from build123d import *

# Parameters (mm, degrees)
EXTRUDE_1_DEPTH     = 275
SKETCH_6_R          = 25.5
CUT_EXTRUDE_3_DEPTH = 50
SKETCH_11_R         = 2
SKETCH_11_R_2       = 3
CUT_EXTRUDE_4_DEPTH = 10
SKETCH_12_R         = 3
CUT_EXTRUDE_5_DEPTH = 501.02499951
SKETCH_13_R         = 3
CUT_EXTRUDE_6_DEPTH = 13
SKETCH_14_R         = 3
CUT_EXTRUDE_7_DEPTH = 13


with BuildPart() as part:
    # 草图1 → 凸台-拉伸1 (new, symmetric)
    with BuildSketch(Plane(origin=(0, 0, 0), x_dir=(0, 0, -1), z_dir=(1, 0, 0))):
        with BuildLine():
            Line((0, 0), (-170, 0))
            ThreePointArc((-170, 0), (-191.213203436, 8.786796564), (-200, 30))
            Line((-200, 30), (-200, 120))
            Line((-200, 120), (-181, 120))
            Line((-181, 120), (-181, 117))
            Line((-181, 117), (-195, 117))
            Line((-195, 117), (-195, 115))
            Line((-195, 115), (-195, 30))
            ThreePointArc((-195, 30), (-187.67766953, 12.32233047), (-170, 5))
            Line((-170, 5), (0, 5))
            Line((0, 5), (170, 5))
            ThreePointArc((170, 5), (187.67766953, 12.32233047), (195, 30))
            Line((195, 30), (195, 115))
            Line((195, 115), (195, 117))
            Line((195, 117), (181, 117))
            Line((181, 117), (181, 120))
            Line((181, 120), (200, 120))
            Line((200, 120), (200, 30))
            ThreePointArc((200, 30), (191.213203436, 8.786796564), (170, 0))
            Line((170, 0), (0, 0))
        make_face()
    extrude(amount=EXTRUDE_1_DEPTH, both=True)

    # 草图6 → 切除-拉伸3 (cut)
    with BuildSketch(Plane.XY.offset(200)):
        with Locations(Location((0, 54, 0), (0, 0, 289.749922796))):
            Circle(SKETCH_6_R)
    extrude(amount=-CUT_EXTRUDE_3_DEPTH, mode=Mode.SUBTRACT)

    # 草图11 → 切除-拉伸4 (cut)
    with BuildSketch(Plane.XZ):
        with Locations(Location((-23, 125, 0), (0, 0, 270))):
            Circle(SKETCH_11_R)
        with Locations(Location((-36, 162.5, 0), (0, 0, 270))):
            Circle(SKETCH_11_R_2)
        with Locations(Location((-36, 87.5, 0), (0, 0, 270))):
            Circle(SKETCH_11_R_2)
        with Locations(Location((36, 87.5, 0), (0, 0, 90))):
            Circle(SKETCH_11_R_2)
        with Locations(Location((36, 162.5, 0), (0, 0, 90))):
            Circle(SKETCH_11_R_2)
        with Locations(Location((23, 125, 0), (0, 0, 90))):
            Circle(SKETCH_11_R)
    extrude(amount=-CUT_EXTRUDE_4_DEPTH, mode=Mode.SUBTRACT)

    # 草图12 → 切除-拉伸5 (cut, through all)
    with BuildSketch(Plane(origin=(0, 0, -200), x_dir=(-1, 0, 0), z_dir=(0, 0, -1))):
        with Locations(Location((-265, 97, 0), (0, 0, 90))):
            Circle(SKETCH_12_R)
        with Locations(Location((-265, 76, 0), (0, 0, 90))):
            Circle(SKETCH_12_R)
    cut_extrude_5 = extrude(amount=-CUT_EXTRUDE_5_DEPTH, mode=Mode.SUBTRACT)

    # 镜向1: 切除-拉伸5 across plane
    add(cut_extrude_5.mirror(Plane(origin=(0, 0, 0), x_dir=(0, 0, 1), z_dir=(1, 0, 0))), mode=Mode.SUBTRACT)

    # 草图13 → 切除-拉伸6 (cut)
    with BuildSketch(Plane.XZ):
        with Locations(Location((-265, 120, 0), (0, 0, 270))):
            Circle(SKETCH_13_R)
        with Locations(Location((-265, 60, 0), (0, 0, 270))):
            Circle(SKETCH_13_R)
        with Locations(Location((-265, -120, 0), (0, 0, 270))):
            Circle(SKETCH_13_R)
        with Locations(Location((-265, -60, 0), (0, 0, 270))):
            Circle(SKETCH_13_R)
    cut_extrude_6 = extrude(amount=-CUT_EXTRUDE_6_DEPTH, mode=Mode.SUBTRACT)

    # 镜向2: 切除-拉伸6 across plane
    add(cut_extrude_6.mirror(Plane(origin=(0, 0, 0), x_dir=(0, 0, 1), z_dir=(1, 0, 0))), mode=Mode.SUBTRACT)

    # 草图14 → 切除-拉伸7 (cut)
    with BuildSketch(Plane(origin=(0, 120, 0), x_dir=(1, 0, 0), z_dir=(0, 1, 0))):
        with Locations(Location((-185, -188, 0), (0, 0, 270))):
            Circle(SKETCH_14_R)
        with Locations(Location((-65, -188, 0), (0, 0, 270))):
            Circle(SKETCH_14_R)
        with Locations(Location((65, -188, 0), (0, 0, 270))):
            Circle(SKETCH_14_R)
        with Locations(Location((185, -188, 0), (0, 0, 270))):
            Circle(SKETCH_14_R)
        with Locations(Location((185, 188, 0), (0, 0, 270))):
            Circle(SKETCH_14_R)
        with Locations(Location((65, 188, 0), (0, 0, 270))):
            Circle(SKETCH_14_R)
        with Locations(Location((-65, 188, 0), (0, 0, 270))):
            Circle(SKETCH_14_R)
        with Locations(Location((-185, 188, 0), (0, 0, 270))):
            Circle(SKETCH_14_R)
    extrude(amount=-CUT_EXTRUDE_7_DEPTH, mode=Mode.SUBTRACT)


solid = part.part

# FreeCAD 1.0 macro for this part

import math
import FreeCAD as App
import Part
import Sketcher

V = App.Vector

doc = App.newDocument("Part")
params = doc.addObject("Spreadsheet::Sheet", "Params")
for row, (alias, value) in enumerate([
    ("sketch1_radius", "30 mm"),
    ("sketch1_radius2", "25 mm"),
    ("sketch1_width", "90 mm"),
    ("sketch1_width2", "3 mm"),
    ("sketch1_height", "340 mm"),
    ("pad1_length", "550 mm"),
    ("sketch2_diameter", "51 mm"),
    ("pocket1_length", "50 mm"),
    ("sketch3_diameter", "4 mm"),
    ("sketch3_diameter2", "6 mm"),
    ("pocket2_length", "10 mm"),
    ("sketch4_diameter", "6 mm"),
    ("sketch5_diameter", "6 mm"),
    ("pocket4_length", "13 mm"),
    ("sketch6_diameter", "6 mm"),
    ("pocket5_length", "13 mm"),
], start=1):
    params.set(f"A{row}", alias)
    params.set(f"B{row}", "=" + value)
    params.setAlias(f"B{row}", alias)

body = doc.addObject("PartDesign::Body", "Body")

# Sketch on YZ plane
sketch1 = doc.addObject("Sketcher::SketchObject", "Sketch")
body.addObject(sketch1)
sketch1.AttachmentSupport = (doc.YZ_Plane, [""])
sketch1.MapMode = "FlatFace"
sketch1.addGeometry(Part.ArcOfCircle(Part.Circle(V(30, 170, 0), V(0, 0, 1), 30), math.radians(90), math.radians(180)), False)
sketch1.addGeometry(Part.LineSegment(V(0, 170, 0), V(0, -170, 0)), False)
sketch1.addGeometry(Part.ArcOfCircle(Part.Circle(V(30, -170, 0), V(0, 0, 1), 30), math.radians(180), math.radians(270)), False)
sketch1.addGeometry(Part.LineSegment(V(30, -200, 0), V(120, -200, 0)), False)
sketch1.addGeometry(Part.LineSegment(V(120, -200, 0), V(120, -181, 0)), False)
sketch1.addGeometry(Part.LineSegment(V(120, -181, 0), V(117, -181, 0)), False)
sketch1.addGeometry(Part.LineSegment(V(117, -181, 0), V(117, -195, 0)), False)
sketch1.addGeometry(Part.LineSegment(V(117, -195, 0), V(30, -195, 0)), False)
sketch1.addGeometry(Part.ArcOfCircle(Part.Circle(V(30, -170, 0), V(0, 0, 1), 25), math.radians(180), math.radians(270)), False)
sketch1.addGeometry(Part.LineSegment(V(5, -170, 0), V(5, 170, 0)), False)
sketch1.addGeometry(Part.ArcOfCircle(Part.Circle(V(30, 170, 0), V(0, 0, 1), 25), math.radians(90), math.radians(180)), False)
sketch1.addGeometry(Part.LineSegment(V(30, 195, 0), V(117, 195, 0)), False)
sketch1.addGeometry(Part.LineSegment(V(117, 195, 0), V(117, 181, 0)), False)
sketch1.addGeometry(Part.LineSegment(V(117, 181, 0), V(120, 181, 0)), False)
sketch1.addGeometry(Part.LineSegment(V(120, 181, 0), V(120, 200, 0)), False)
sketch1.addGeometry(Part.LineSegment(V(120, 200, 0), V(30, 200, 0)), False)
sketch1.addConstraint(Sketcher.Constraint("Tangent", 0, 2, 1, 1))
sketch1.addConstraint(Sketcher.Constraint("Tangent", 1, 2, 2, 1))
sketch1.addConstraint(Sketcher.Constraint("Tangent", 2, 2, 3, 1))
sketch1.addConstraint(Sketcher.Constraint("Coincident", 3, 2, 4, 1))
sketch1.addConstraint(Sketcher.Constraint("Coincident", 4, 2, 5, 1))
sketch1.addConstraint(Sketcher.Constraint("Coincident", 5, 2, 6, 1))
sketch1.addConstraint(Sketcher.Constraint("Coincident", 6, 2, 7, 1))
sketch1.addConstraint(Sketcher.Constraint("Tangent", 7, 2, 8, 2))
sketch1.addConstraint(Sketcher.Constraint("Tangent", 8, 1, 9, 1))
sketch1.addConstraint(Sketcher.Constraint("Tangent", 9, 2, 10, 2))
sketch1.addConstraint(Sketcher.Constraint("Tangent", 10, 1, 11, 1))
sketch1.addConstraint(Sketcher.Constraint("Coincident", 11, 2, 12, 1))
sketch1.addConstraint(Sketcher.Constraint("Coincident", 12, 2, 13, 1))
sketch1.addConstraint(Sketcher.Constraint("Coincident", 13, 2, 14, 1))
sketch1.addConstraint(Sketcher.Constraint("Coincident", 14, 2, 15, 1))
sketch1.addConstraint(Sketcher.Constraint("Tangent", 15, 2, 0, 1))
sketch1.addConstraint(Sketcher.Constraint("Vertical", 1))
sketch1.addConstraint(Sketcher.Constraint("Horizontal", 3))
sketch1.addConstraint(Sketcher.Constraint("Vertical", 4))
sketch1.addConstraint(Sketcher.Constraint("Horizontal", 5))
sketch1.addConstraint(Sketcher.Constraint("Vertical", 6))
sketch1.addConstraint(Sketcher.Constraint("Horizontal", 7))
sketch1.addConstraint(Sketcher.Constraint("Vertical", 9))
sketch1.addConstraint(Sketcher.Constraint("Horizontal", 11))
sketch1.addConstraint(Sketcher.Constraint("Vertical", 12))
sketch1.addConstraint(Sketcher.Constraint("Horizontal", 13))
sketch1.addConstraint(Sketcher.Constraint("Vertical", 14))
sketch1.addConstraint(Sketcher.Constraint("Horizontal", 15))
sketch1.addConstraint(Sketcher.Constraint("Coincident", 8, 3, 2, 3))
sketch1.addConstraint(Sketcher.Constraint("Coincident", 10, 3, 0, 3))
sketch1.addConstraint(Sketcher.Constraint("Equal", 0, 2))
sketch1.addConstraint(Sketcher.Constraint("Symmetric", 0, 2, 1, 2, -1, 1))
sketch1.addConstraint(Sketcher.Constraint("Symmetric", 5, 2, 12, 2, -1))
sketch1.addConstraint(Sketcher.Constraint("Vertical", 4, 2, 13, 2))
sketch1.addConstraint(Sketcher.Constraint("Radius", 0, 30.0))
sketch1.addConstraint(Sketcher.Constraint("Radius", 8, 25.0))
sketch1.addConstraint(Sketcher.Constraint("DistanceX", 3, 1, 3, 2, 90.0))
sketch1.addConstraint(Sketcher.Constraint("DistanceX", 5, 2, 5, 1, 3.0))
sketch1.addConstraint(Sketcher.Constraint("DistanceY", 1, 2, 1, 1, 340.0))
sketch1.addConstraint(Sketcher.Constraint("DistanceY", 4, 1, 4, 2, 19.0))
sketch1.setExpression("Constraints[34]", "Params.sketch1_radius")
sketch1.setExpression("Constraints[35]", "Params.sketch1_radius2")
sketch1.setExpression("Constraints[36]", "Params.sketch1_width")
sketch1.setExpression("Constraints[37]", "Params.sketch1_width2")
sketch1.setExpression("Constraints[38]", "Params.sketch1_height")
pad1 = doc.addObject("PartDesign::Pad", "Pad")
body.addObject(pad1)
pad1.Profile = sketch1
pad1.setExpression("Length", "Params.pad1_length")
pad1.Midplane = True

# Sketch on XY plane
sketch2 = doc.addObject("Sketcher::SketchObject", "Sketch001")
body.addObject(sketch2)
sketch2.AttachmentSupport = (doc.XY_Plane, [""])
sketch2.MapMode = "FlatFace"
sketch2.AttachmentOffset = App.Placement(V(0, 0, 200), App.Rotation())
sketch2.addGeometry(Part.Circle(V(0, 54, 0), V(0, 0, 1), 26), False)
sketch2.addConstraint(Sketcher.Constraint("PointOnObject", 0, 3, -2))
sketch2.addConstraint(Sketcher.Constraint("Diameter", 0, 51.0))
sketch2.addConstraint(Sketcher.Constraint("DistanceY", -1, 1, 0, 3, 54.0))
sketch2.setExpression("Constraints[1]", "Params.sketch2_diameter")
pocket1 = doc.addObject("PartDesign::Pocket", "Pocket")
body.addObject(pocket1)
pocket1.Profile = sketch2
pocket1.setExpression("Length", "Params.pocket1_length")

# Sketch on XZ plane
sketch3 = doc.addObject("Sketcher::SketchObject", "Sketch002")
body.addObject(sketch3)
sketch3.AttachmentSupport = (doc.XZ_Plane, [""])
sketch3.MapMode = "FlatFace"
sketch3.addGeometry(Part.Circle(V(-23, 125, 0), V(0, 0, 1), 2), False)
sketch3.addGeometry(Part.Circle(V(-36, 162.5, 0), V(0, 0, 1), 3), False)
sketch3.addGeometry(Part.Circle(V(-36, 87.5, 0), V(0, 0, 1), 3), False)
sketch3.addGeometry(Part.Circle(V(36, 87.5, 0), V(0, 0, 1), 3), False)
sketch3.addGeometry(Part.Circle(V(36, 162.5, 0), V(0, 0, 1), 3), False)
sketch3.addGeometry(Part.Circle(V(23, 125, 0), V(0, 0, 1), 2), False)
sketch3.addConstraint(Sketcher.Constraint("Equal", 1, 2))
sketch3.addConstraint(Sketcher.Constraint("Equal", 2, 3))
sketch3.addConstraint(Sketcher.Constraint("Equal", 3, 4))
sketch3.addConstraint(Sketcher.Constraint("Equal", 0, 5))
sketch3.addConstraint(Sketcher.Constraint("Symmetric", 2, 3, 3, 3, -2))
sketch3.addConstraint(Sketcher.Constraint("Symmetric", 1, 3, 4, 3, -2))
sketch3.addConstraint(Sketcher.Constraint("Symmetric", 0, 3, 5, 3, -2))
sketch3.addConstraint(Sketcher.Constraint("Vertical", 1, 3, 2, 3))
sketch3.addConstraint(Sketcher.Constraint("Diameter", 0, 4.0))
sketch3.addConstraint(Sketcher.Constraint("Diameter", 1, 6.0))
sketch3.addConstraint(Sketcher.Constraint("DistanceX", 0, 3, -1, 1, 23.0))
sketch3.addConstraint(Sketcher.Constraint("DistanceY", -1, 1, 0, 3, 125.0))
sketch3.addConstraint(Sketcher.Constraint("DistanceX", 1, 3, -1, 1, 36.0))
sketch3.addConstraint(Sketcher.Constraint("DistanceY", 2, 3, 1, 3, 75.0))
sketch3.addConstraint(Sketcher.Constraint("DistanceY", -1, 1, 1, 3, 162.5))
sketch3.setExpression("Constraints[8]", "Params.sketch3_diameter")
sketch3.setExpression("Constraints[9]", "Params.sketch3_diameter2")
pocket2 = doc.addObject("PartDesign::Pocket", "Pocket001")
body.addObject(pocket2)
pocket2.Profile = sketch3
pocket2.setExpression("Length", "Params.pocket2_length")

# Sketch on XY plane
sketch4 = doc.addObject("Sketcher::SketchObject", "Sketch003")
body.addObject(sketch4)
sketch4.AttachmentSupport = (doc.XY_Plane, [""])
sketch4.MapMode = "FlatFace"
sketch4.AttachmentOffset = App.Placement(V(0, 0, -200), App.Rotation())
sketch4.addGeometry(Part.Circle(V(265, 97, 0), V(0, 0, 1), 3), False)
sketch4.addGeometry(Part.Circle(V(265, 76, 0), V(0, 0, 1), 3), False)
sketch4.addConstraint(Sketcher.Constraint("Equal", 0, 1))
sketch4.addConstraint(Sketcher.Constraint("Vertical", 0, 3, 1, 3))
sketch4.addConstraint(Sketcher.Constraint("Diameter", 0, 6.0))
sketch4.addConstraint(Sketcher.Constraint("DistanceX", -1, 1, 0, 3, 265.0))
sketch4.addConstraint(Sketcher.Constraint("DistanceY", -1, 1, 0, 3, 97.0))
sketch4.addConstraint(Sketcher.Constraint("DistanceY", -1, 1, 1, 3, 76.0))
sketch4.setExpression("Constraints[2]", "Params.sketch4_diameter")
pocket3 = doc.addObject("PartDesign::Pocket", "Pocket002")
body.addObject(pocket3)
pocket3.Profile = sketch4
pocket3.Type = "ThroughAll"
pocket3.Reversed = True
doc.recompute()

mirrored = doc.addObject("PartDesign::Mirrored", "Mirrored")
body.addObject(mirrored)
mirrored.Originals = [pocket3]
mirrored.MirrorPlane = (doc.YZ_Plane, [""])
body.Tip = mirrored

# Sketch on XZ plane
sketch5 = doc.addObject("Sketcher::SketchObject", "Sketch004")
body.addObject(sketch5)
sketch5.AttachmentSupport = (doc.XZ_Plane, [""])
sketch5.MapMode = "FlatFace"
sketch5.addGeometry(Part.Circle(V(-265, 120, 0), V(0, 0, 1), 3), False)
sketch5.addGeometry(Part.Circle(V(-265, 60, 0), V(0, 0, 1), 3), False)
sketch5.addGeometry(Part.Circle(V(-265, -120, 0), V(0, 0, 1), 3), False)
sketch5.addGeometry(Part.Circle(V(-265, -60, 0), V(0, 0, 1), 3), False)
sketch5.addConstraint(Sketcher.Constraint("Equal", 0, 1))
sketch5.addConstraint(Sketcher.Constraint("Equal", 1, 2))
sketch5.addConstraint(Sketcher.Constraint("Equal", 2, 3))
sketch5.addConstraint(Sketcher.Constraint("Symmetric", 0, 3, 2, 3, -1))
sketch5.addConstraint(Sketcher.Constraint("Symmetric", 1, 3, 3, 3, -1))
sketch5.addConstraint(Sketcher.Constraint("Vertical", 0, 3, 1, 3))
sketch5.addConstraint(Sketcher.Constraint("Diameter", 0, 6.0))
sketch5.addConstraint(Sketcher.Constraint("DistanceX", 0, 3, -1, 1, 265.0))
sketch5.addConstraint(Sketcher.Constraint("DistanceY", -1, 1, 0, 3, 120.0))
sketch5.addConstraint(Sketcher.Constraint("DistanceY", -1, 1, 1, 3, 60.0))
sketch5.setExpression("Constraints[6]", "Params.sketch5_diameter")
pocket4 = doc.addObject("PartDesign::Pocket", "Pocket003")
body.addObject(pocket4)
pocket4.Profile = sketch5
pocket4.setExpression("Length", "Params.pocket4_length")
doc.recompute()

mirrored2 = doc.addObject("PartDesign::Mirrored", "Mirrored001")
body.addObject(mirrored2)
mirrored2.Originals = [pocket4]
mirrored2.MirrorPlane = (doc.YZ_Plane, [""])
body.Tip = mirrored2

# Sketch on XZ plane
sketch6 = doc.addObject("Sketcher::SketchObject", "Sketch005")
body.addObject(sketch6)
sketch6.AttachmentSupport = (doc.XZ_Plane, [""])
sketch6.MapMode = "FlatFace"
sketch6.AttachmentOffset = App.Placement(V(0, 0, -120), App.Rotation())
sketch6.addGeometry(Part.Circle(V(-185, 188, 0), V(0, 0, 1), 3), False)
sketch6.addGeometry(Part.Circle(V(-65, 188, 0), V(0, 0, 1), 3), False)
sketch6.addGeometry(Part.Circle(V(65, 188, 0), V(0, 0, 1), 3), False)
sketch6.addGeometry(Part.Circle(V(185, 188, 0), V(0, 0, 1), 3), False)
sketch6.addGeometry(Part.Circle(V(185, -188, 0), V(0, 0, 1), 3), False)
sketch6.addGeometry(Part.Circle(V(65, -188, 0), V(0, 0, 1), 3), False)
sketch6.addGeometry(Part.Circle(V(-65, -188, 0), V(0, 0, 1), 3), False)
sketch6.addGeometry(Part.Circle(V(-185, -188, 0), V(0, 0, 1), 3), False)
sketch6.addConstraint(Sketcher.Constraint("Equal", 0, 1))
sketch6.addConstraint(Sketcher.Constraint("Equal", 1, 2))
sketch6.addConstraint(Sketcher.Constraint("Equal", 2, 3))
sketch6.addConstraint(Sketcher.Constraint("Equal", 3, 4))
sketch6.addConstraint(Sketcher.Constraint("Equal", 4, 5))
sketch6.addConstraint(Sketcher.Constraint("Equal", 5, 6))
sketch6.addConstraint(Sketcher.Constraint("Equal", 6, 7))
sketch6.addConstraint(Sketcher.Constraint("Symmetric", 0, 3, 4, 3, -1, 1))
sketch6.addConstraint(Sketcher.Constraint("Symmetric", 1, 3, 5, 3, -1, 1))
sketch6.addConstraint(Sketcher.Constraint("Symmetric", 2, 3, 6, 3, -1, 1))
sketch6.addConstraint(Sketcher.Constraint("Symmetric", 3, 3, 7, 3, -1, 1))
sketch6.addConstraint(Sketcher.Constraint("Symmetric", 1, 3, 2, 3, -2))
sketch6.addConstraint(Sketcher.Constraint("Symmetric", 0, 3, 3, 3, -2))
sketch6.addConstraint(Sketcher.Constraint("Horizontal", 0, 3, 1, 3))
sketch6.addConstraint(Sketcher.Constraint("Diameter", 0, 6.0))
sketch6.addConstraint(Sketcher.Constraint("DistanceX", 0, 3, -1, 1, 185.0))
sketch6.addConstraint(Sketcher.Constraint("DistanceY", -1, 1, 0, 3, 188.0))
sketch6.addConstraint(Sketcher.Constraint("DistanceX", 1, 3, -1, 1, 65.0))
sketch6.setExpression("Constraints[14]", "Params.sketch6_diameter")
pocket5 = doc.addObject("PartDesign::Pocket", "Pocket004")
body.addObject(pocket5)
pocket5.Profile = sketch6
pocket5.setExpression("Length", "Params.pocket5_length")
pocket5.Reversed = True

doc.recompute()
